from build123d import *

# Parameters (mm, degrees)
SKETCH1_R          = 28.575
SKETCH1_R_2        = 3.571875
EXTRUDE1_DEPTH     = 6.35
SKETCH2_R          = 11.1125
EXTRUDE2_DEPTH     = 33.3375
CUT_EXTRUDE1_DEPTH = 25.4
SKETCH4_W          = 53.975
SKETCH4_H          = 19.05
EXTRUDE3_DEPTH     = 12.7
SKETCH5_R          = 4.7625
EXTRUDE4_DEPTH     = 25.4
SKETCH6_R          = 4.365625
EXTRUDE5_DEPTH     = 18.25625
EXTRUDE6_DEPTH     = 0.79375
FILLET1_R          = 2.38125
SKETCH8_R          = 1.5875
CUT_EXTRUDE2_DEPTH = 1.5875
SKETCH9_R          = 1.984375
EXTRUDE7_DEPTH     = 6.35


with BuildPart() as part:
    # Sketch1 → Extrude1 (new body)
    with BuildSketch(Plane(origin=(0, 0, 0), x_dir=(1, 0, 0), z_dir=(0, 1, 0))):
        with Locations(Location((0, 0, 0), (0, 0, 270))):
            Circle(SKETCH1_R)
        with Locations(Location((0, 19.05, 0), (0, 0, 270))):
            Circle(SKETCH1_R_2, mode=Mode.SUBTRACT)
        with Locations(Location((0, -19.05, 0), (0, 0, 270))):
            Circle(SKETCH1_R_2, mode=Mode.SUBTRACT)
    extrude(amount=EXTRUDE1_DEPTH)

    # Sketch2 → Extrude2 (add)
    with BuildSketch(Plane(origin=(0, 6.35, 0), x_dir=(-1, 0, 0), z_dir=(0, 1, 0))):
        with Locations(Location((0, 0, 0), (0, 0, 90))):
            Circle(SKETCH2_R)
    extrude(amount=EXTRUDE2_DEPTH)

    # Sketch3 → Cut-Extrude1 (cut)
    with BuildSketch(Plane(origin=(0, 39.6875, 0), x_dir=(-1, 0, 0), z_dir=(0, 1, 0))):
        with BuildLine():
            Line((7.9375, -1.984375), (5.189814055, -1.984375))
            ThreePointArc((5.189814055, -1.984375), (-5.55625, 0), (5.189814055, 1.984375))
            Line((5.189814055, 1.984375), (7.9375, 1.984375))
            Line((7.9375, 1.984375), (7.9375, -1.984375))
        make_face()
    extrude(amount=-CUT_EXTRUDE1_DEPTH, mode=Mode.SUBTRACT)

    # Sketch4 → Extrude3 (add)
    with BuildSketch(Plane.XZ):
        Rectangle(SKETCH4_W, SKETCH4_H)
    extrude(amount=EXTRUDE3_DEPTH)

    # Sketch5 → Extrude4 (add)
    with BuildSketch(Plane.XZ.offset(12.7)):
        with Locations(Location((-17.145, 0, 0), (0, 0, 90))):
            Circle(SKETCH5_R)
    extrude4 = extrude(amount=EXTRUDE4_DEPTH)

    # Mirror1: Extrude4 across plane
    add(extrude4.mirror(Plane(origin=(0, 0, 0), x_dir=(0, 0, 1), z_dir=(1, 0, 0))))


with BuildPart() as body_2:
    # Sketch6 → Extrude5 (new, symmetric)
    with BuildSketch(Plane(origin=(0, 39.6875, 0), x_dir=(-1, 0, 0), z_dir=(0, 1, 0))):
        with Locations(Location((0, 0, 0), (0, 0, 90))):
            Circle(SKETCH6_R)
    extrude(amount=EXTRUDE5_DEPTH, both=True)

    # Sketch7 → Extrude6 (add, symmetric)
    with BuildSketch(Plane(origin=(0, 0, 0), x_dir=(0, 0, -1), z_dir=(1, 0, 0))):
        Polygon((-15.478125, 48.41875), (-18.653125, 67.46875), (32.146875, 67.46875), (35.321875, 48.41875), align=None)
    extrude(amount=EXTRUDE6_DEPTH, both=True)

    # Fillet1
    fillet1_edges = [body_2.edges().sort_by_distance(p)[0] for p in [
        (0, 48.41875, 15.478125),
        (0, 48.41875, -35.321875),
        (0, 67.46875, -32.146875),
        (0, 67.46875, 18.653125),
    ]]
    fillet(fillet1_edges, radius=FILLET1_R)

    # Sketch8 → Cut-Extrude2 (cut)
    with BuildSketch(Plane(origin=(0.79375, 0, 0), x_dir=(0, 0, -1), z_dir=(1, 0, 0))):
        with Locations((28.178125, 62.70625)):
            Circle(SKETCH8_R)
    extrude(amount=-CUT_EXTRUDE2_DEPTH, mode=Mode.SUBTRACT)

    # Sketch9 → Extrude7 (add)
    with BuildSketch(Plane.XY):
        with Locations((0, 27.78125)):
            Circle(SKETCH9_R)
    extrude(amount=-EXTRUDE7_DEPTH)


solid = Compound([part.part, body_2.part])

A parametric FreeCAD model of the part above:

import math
import FreeCAD as App
import Part
import Sketcher

V = App.Vector
Q = App.Units.Quantity


def edges_at(feature, points):
    """Names of the edges that pass closest to the given points."""
    edges = feature.Shape.Edges
    near = lambda p: min(range(len(edges)), key=lambda i: edges[i].distToShape(Part.Vertex(*p))[0])
    return sorted({f"Edge{near(p) + 1}" for p in points})


def add_polygon(sketch, points):
    """Adds a closed chain of lines whose ends are joined by coincident constraints."""
    first, n = sketch.GeometryCount, len(points)
    for a, b in zip(points, points[1:] + points[:1]):
        sketch.addGeometry(Part.LineSegment(App.Vector(*a, 0), App.Vector(*b, 0)), False)
    for i in range(n):
        sketch.addConstraint(Sketcher.Constraint("Coincident", first + i, 2, first + (i + 1) % n, 1))

doc = App.newDocument("Part")
body = doc.addObject("PartDesign::Body", "Body")

# Sketch on XZ plane
sketch1 = body.newObject("Sketcher::SketchObject", "Sketch")
sketch1.AttachmentSupport = (doc.getObject("XZ_Plane"), [""])
sketch1.MapMode = "FlatFace"
sketch1.addGeometry([
    Part.Circle(V(0, 0, 0), V(0, 0, 1), 28.6),
    Part.Circle(V(0, -19.1, 0), V(0, 0, 1), 3.6),
    Part.Circle(V(0, 19.1, 0), V(0, 0, 1), 3.6),
], False)
sketch1.addConstraint([
    Sketcher.Constraint("Coincident", 0, 3, -1, 1),
    Sketcher.Constraint("Equal", 1, 2),
    Sketcher.Constraint("Symmetric", 1, 3, 2, 3, -1, 1),
    Sketcher.Constraint("PointOnObject", 1, 3, -2),
    Sketcher.Constraint("Diameter", 0, Q("2.25 in")),
    Sketcher.Constraint("Diameter", 1, Q("0.28125 in")),
    Sketcher.Constraint("DistanceY", 1, 3, 2, 3, Q("1.5 in")),
])
pad1 = body.newObject("PartDesign::Pad", "Pad")
pad1.Profile = sketch1
pad1.Length = Q("0.25 in")
pad1.Reversed = True

# Sketch on XZ plane
sketch2 = body.newObject("Sketcher::SketchObject", "Sketch001")
sketch2.AttachmentSupport = (doc.getObject("XZ_Plane"), [""])
sketch2.MapMode = "FlatFace"
sketch2.AttachmentOffset = App.Placement(V(0, 0, -0.25 * 25.4), App.Rotation())
sketch2.addGeometry(Part.Circle(V(0, 0, 0), V(0, 0, 1), 11), False)
sketch2.addConstraint([
    Sketcher.Constraint("Coincident", 0, 3, -1, 1),
    Sketcher.Constraint("Diameter", 0, Q("0.875 in")),
])
pad2 = body.newObject("PartDesign::Pad", "Pad001")
pad2.Profile = sketch2
pad2.Length = Q("1.3125 in")
pad2.Reversed = True

# Sketch on XZ plane
sketch3 = body.newObject("Sketcher::SketchObject", "Sketch002")
sketch3.AttachmentSupport = (doc.getObject("XZ_Plane"), [""])
sketch3.MapMode = "FlatFace"
sketch3.AttachmentOffset = App.Placement(V(0, 0, -1.5625 * 25.4), App.Rotation())
sketch3.addGeometry([
    Part.LineSegment(V(-5.2, -2, 0), V(-7.9, -2, 0)),
    Part.LineSegment(V(-7.9, -2, 0), V(-7.9, 2, 0)),
    Part.LineSegment(V(-7.9, 2, 0), V(-5.2, 2, 0)),
    Part.ArcOfCircle(Part.Circle(V(0, 0, 0), V(0, 0, 1), 5.6), math.radians(-159), math.radians(159)),
], False)
sketch3.addConstraint([
    Sketcher.Constraint("Coincident", 0, 2, 1, 1),
    Sketcher.Constraint("Coincident", 1, 2, 2, 1),
    Sketcher.Constraint("Coincident", 2, 2, 3, 2),
    Sketcher.Constraint("Coincident", 3, 1, 0, 1),
    Sketcher.Constraint("Horizontal", 0),
    Sketcher.Constraint("Vertical", 1),
    Sketcher.Constraint("Horizontal", 2),
    Sketcher.Constraint("Coincident", 3, 3, -1, 1),
    Sketcher.Constraint("Vertical", 2, 2, 3, 1),
    Sketcher.Constraint("Radius", 3, Q("0.21875 in")),
    Sketcher.Constraint("DistanceY", 1, 1, 1, 2, Q("0.15625 in")),
    Sketcher.Constraint("DistanceX", 0, 2, -1, 1, Q("0.3125 in")),
])
pocket1 = body.newObject("PartDesign::Pocket", "Pocket")
pocket1.Profile = sketch3
pocket1.Length = Q("1 in")
pocket1.Reversed = True

# Sketch on XZ plane
sketch4 = body.newObject("Sketcher::SketchObject", "Sketch003")
sketch4.AttachmentSupport = (doc.getObject("XZ_Plane"), [""])
sketch4.MapMode = "FlatFace"
add_polygon(sketch4, [(-27, 10), (-27, -10), (27, -10), (27, 10)])  # lines 0-3
sketch4.addConstraint([
    Sketcher.Constraint("Vertical", 0),
    Sketcher.Constraint("Horizontal", 1),
    Sketcher.Constraint("Vertical", 2),
    Sketcher.Constraint("Horizontal", 3),
    Sketcher.Constraint("Symmetric", 0, 2, 2, 2, -1, 1),
    Sketcher.Constraint("DistanceY", 0, 2, 0, 1, Q("0.75 in")),
    Sketcher.Constraint("DistanceX", 1, 1, 1, 2, Q("2.125 in")),
])
pad3 = body.newObject("PartDesign::Pad", "Pad002")
pad3.Profile = sketch4
pad3.Length = Q("0.5 in")

# Sketch on XZ plane
sketch5 = body.newObject("Sketcher::SketchObject", "Sketch004")
sketch5.AttachmentSupport = (doc.getObject("XZ_Plane"), [""])
sketch5.MapMode = "FlatFace"
sketch5.AttachmentOffset = App.Placement(V(0, 0, 0.5 * 25.4), App.Rotation())
sketch5.addGeometry(Part.Circle(V(-17.1, 0, 0), V(0, 0, 1), 4.8), False)
sketch5.addConstraint([
    Sketcher.Constraint("PointOnObject", 0, 3, -1),
    Sketcher.Constraint("Diameter", 0, Q("0.375 in")),
    Sketcher.Constraint("DistanceX", 0, 3, -1, 1, Q("0.675 in")),
])
pad4 = body.newObject("PartDesign::Pad", "Pad003")
pad4.Profile = sketch5
pad4.Length = Q("1 in")
doc.recompute()

mirrored = body.newObject("PartDesign::Mirrored", "Mirrored")
mirrored.Originals = [pad4]
mirrored.MirrorPlane = (doc.getObject("YZ_Plane"), [""])
body.Tip = mirrored
body2 = doc.addObject("PartDesign::Body", "Body001")

# Sketch on XZ plane
sketch6 = body2.newObject("Sketcher::SketchObject", "Sketch005")
sketch6.AttachmentSupport = (doc.getObject("XZ_Plane001"), [""])
sketch6.MapMode = "FlatFace"
sketch6.AttachmentOffset = App.Placement(V(0, 0, -1.5625 * 25.4), App.Rotation())
sketch6.addGeometry(Part.Circle(V(0, 0, 0), V(0, 0, 1), 4.4), False)
sketch6.addConstraint([
    Sketcher.Constraint("Coincident", 0, 3, -1, 1),
    Sketcher.Constraint("Diameter", 0, Q("0.34375 in")),
])
pad5 = body2.newObject("PartDesign::Pad", "Pad004")
pad5.Profile = sketch6
pad5.Length = Q("1.4375 in")
pad5.Midplane = True

# Sketch on YZ plane
sketch7 = body2.newObject("Sketcher::SketchObject", "Sketch006")
sketch7.AttachmentSupport = (doc.getObject("YZ_Plane001"), [""])
sketch7.MapMode = "FlatFace"
add_polygon(sketch7, [(67, 19), (48, 15), (48, -35), (67, -32)])  # lines 0-3
sketch7.addConstraint([
    Sketcher.Constraint("Vertical", 1),
    Sketcher.Constraint("Vertical", 3),
    Sketcher.Constraint("Parallel", 0, 2),
    Sketcher.Constraint("DistanceY", 1, 2, 1, 1, Q("2 in")),
    Sketcher.Constraint("DistanceX", 1, 2, 2, 2, Q("0.75 in")),
    Sketcher.Constraint("DistanceX", -1, 1, 0, 2, Q("1.90625 in")),
    Sketcher.Constraint("DistanceY", -1, 1, 0, 2, Q("0.609375 in")),
    Sketcher.Constraint("DistanceY", 2, 2, -1, 1, Q("1.265625 in")),
])
pad6 = body2.newObject("PartDesign::Pad", "Pad005")
pad6.Profile = sketch7
pad6.Length = Q("0.0625 in")
pad6.Midplane = True
doc.recompute()

fillet = body2.newObject("PartDesign::Fillet", "Fillet")
fillet.Base = (pad6, edges_at(pad6, [
    (0, 48.419, 15.478),
    (0, 48.419, -35.322),
    (0, 67.469, -32.147),
    (0, 67.469, 18.653),
]))
fillet.Radius = Q("0.09375 in")

# Sketch on YZ plane
sketch8 = body2.newObject("Sketcher::SketchObject", "Sketch007")
sketch8.AttachmentSupport = (doc.getObject("YZ_Plane001"), [""])
sketch8.MapMode = "FlatFace"
sketch8.AttachmentOffset = App.Placement(V(0, 0, 0.03125 * 25.4), App.Rotation())
sketch8.addGeometry(Part.Circle(V(62.7, -28.2, 0), V(0, 0, 1), 1.6), False)
sketch8.addConstraint([
    Sketcher.Constraint("Diameter", 0, Q("0.125 in")),
    Sketcher.Constraint("DistanceX", -1, 1, 0, 3, Q("2.46875 in")),
    Sketcher.Constraint("DistanceY", 0, 3, -1, 1, Q("1.109375 in")),
])
pocket2 = body2.newObject("PartDesign::Pocket", "Pocket001")
pocket2.Profile = sketch8
pocket2.Length = Q("0.0625 in")

# Sketch on XY plane
sketch9 = body2.newObject("Sketcher::SketchObject", "Sketch008")
sketch9.AttachmentSupport = (doc.getObject("XY_Plane001"), [""])
sketch9.MapMode = "FlatFace"
sketch9.addGeometry(Part.Circle(V(0, 27.8, 0), V(0, 0, 1), 2), False)
sketch9.addConstraint([
    Sketcher.Constraint("PointOnObject", 0, 3, -2),
    Sketcher.Constraint("Diameter", 0, Q("0.15625 in")),
    Sketcher.Constraint("DistanceY", -1, 1, 0, 3, Q("1.09375 in")),
])
pad7 = body2.newObject("PartDesign::Pad", "Pad006")
pad7.Profile = sketch9
pad7.Length = Q("0.25 in")
pad7.Reversed = True

doc.recompute()
